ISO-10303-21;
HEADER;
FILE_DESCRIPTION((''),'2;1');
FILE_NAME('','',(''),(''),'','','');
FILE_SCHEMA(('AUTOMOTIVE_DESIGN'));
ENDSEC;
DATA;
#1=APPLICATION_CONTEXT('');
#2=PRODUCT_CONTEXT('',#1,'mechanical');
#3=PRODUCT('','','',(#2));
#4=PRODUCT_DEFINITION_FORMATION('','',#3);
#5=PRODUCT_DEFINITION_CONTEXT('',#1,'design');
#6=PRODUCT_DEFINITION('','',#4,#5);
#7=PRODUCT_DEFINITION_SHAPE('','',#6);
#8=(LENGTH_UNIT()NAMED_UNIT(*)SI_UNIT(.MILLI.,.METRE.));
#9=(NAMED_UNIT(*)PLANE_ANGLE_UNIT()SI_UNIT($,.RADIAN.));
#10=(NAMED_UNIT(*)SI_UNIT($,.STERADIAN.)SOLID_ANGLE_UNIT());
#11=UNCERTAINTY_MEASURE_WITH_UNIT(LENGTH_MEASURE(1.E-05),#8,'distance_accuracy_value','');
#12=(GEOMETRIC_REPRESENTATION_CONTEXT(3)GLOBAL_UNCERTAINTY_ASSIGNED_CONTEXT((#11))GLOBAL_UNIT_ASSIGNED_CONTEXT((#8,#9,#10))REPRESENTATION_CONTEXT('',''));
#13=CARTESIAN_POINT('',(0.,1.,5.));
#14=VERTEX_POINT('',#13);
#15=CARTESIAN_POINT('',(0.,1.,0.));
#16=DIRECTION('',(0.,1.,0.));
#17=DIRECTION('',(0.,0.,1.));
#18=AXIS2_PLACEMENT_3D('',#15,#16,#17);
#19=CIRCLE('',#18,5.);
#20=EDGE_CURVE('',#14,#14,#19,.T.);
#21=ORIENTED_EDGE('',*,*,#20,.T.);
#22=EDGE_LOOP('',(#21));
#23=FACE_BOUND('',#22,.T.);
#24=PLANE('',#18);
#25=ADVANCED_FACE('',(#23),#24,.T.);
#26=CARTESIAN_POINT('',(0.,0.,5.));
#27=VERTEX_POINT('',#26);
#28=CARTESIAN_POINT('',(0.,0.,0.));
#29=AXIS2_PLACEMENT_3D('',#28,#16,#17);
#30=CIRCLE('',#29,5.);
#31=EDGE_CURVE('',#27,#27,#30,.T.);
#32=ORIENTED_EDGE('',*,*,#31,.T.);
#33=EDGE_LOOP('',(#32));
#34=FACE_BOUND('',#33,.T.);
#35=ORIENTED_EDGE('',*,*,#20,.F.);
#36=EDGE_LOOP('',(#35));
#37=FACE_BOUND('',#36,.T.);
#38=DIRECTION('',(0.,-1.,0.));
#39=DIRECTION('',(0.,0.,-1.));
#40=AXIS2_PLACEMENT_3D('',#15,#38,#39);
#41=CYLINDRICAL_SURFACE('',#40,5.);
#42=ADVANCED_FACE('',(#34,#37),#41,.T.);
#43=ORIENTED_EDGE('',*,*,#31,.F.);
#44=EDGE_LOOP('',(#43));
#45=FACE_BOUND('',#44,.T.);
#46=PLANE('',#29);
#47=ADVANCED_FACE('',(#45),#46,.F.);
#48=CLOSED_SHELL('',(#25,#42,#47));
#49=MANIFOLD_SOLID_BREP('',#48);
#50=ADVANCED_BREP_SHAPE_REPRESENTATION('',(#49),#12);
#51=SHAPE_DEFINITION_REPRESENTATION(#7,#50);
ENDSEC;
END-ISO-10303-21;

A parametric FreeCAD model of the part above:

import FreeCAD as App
import Part
import Sketcher

doc = App.newDocument("Part")
body = doc.addObject("PartDesign::Body", "Body")

# Sketch on XZ plane
sketch1 = body.newObject("Sketcher::SketchObject", "Sketch")
sketch1.AttachmentSupport = (doc.getObject("XZ_Plane"), [""])
sketch1.MapMode = "FlatFace"
sketch1.addGeometry(Part.Circle(App.Vector(0, 0, 0), App.Vector(0, 0, 1), 5), False)
sketch1.addConstraint(Sketcher.Constraint("Coincident", 0, 3, -1, 1))
sketch1.addConstraint(Sketcher.Constraint("Diameter", 0, 10.0))
pad1 = body.newObject("PartDesign::Pad", "Pad")
pad1.Profile = sketch1
pad1.Length = 1
pad1.Reversed = True

doc.recompute()
